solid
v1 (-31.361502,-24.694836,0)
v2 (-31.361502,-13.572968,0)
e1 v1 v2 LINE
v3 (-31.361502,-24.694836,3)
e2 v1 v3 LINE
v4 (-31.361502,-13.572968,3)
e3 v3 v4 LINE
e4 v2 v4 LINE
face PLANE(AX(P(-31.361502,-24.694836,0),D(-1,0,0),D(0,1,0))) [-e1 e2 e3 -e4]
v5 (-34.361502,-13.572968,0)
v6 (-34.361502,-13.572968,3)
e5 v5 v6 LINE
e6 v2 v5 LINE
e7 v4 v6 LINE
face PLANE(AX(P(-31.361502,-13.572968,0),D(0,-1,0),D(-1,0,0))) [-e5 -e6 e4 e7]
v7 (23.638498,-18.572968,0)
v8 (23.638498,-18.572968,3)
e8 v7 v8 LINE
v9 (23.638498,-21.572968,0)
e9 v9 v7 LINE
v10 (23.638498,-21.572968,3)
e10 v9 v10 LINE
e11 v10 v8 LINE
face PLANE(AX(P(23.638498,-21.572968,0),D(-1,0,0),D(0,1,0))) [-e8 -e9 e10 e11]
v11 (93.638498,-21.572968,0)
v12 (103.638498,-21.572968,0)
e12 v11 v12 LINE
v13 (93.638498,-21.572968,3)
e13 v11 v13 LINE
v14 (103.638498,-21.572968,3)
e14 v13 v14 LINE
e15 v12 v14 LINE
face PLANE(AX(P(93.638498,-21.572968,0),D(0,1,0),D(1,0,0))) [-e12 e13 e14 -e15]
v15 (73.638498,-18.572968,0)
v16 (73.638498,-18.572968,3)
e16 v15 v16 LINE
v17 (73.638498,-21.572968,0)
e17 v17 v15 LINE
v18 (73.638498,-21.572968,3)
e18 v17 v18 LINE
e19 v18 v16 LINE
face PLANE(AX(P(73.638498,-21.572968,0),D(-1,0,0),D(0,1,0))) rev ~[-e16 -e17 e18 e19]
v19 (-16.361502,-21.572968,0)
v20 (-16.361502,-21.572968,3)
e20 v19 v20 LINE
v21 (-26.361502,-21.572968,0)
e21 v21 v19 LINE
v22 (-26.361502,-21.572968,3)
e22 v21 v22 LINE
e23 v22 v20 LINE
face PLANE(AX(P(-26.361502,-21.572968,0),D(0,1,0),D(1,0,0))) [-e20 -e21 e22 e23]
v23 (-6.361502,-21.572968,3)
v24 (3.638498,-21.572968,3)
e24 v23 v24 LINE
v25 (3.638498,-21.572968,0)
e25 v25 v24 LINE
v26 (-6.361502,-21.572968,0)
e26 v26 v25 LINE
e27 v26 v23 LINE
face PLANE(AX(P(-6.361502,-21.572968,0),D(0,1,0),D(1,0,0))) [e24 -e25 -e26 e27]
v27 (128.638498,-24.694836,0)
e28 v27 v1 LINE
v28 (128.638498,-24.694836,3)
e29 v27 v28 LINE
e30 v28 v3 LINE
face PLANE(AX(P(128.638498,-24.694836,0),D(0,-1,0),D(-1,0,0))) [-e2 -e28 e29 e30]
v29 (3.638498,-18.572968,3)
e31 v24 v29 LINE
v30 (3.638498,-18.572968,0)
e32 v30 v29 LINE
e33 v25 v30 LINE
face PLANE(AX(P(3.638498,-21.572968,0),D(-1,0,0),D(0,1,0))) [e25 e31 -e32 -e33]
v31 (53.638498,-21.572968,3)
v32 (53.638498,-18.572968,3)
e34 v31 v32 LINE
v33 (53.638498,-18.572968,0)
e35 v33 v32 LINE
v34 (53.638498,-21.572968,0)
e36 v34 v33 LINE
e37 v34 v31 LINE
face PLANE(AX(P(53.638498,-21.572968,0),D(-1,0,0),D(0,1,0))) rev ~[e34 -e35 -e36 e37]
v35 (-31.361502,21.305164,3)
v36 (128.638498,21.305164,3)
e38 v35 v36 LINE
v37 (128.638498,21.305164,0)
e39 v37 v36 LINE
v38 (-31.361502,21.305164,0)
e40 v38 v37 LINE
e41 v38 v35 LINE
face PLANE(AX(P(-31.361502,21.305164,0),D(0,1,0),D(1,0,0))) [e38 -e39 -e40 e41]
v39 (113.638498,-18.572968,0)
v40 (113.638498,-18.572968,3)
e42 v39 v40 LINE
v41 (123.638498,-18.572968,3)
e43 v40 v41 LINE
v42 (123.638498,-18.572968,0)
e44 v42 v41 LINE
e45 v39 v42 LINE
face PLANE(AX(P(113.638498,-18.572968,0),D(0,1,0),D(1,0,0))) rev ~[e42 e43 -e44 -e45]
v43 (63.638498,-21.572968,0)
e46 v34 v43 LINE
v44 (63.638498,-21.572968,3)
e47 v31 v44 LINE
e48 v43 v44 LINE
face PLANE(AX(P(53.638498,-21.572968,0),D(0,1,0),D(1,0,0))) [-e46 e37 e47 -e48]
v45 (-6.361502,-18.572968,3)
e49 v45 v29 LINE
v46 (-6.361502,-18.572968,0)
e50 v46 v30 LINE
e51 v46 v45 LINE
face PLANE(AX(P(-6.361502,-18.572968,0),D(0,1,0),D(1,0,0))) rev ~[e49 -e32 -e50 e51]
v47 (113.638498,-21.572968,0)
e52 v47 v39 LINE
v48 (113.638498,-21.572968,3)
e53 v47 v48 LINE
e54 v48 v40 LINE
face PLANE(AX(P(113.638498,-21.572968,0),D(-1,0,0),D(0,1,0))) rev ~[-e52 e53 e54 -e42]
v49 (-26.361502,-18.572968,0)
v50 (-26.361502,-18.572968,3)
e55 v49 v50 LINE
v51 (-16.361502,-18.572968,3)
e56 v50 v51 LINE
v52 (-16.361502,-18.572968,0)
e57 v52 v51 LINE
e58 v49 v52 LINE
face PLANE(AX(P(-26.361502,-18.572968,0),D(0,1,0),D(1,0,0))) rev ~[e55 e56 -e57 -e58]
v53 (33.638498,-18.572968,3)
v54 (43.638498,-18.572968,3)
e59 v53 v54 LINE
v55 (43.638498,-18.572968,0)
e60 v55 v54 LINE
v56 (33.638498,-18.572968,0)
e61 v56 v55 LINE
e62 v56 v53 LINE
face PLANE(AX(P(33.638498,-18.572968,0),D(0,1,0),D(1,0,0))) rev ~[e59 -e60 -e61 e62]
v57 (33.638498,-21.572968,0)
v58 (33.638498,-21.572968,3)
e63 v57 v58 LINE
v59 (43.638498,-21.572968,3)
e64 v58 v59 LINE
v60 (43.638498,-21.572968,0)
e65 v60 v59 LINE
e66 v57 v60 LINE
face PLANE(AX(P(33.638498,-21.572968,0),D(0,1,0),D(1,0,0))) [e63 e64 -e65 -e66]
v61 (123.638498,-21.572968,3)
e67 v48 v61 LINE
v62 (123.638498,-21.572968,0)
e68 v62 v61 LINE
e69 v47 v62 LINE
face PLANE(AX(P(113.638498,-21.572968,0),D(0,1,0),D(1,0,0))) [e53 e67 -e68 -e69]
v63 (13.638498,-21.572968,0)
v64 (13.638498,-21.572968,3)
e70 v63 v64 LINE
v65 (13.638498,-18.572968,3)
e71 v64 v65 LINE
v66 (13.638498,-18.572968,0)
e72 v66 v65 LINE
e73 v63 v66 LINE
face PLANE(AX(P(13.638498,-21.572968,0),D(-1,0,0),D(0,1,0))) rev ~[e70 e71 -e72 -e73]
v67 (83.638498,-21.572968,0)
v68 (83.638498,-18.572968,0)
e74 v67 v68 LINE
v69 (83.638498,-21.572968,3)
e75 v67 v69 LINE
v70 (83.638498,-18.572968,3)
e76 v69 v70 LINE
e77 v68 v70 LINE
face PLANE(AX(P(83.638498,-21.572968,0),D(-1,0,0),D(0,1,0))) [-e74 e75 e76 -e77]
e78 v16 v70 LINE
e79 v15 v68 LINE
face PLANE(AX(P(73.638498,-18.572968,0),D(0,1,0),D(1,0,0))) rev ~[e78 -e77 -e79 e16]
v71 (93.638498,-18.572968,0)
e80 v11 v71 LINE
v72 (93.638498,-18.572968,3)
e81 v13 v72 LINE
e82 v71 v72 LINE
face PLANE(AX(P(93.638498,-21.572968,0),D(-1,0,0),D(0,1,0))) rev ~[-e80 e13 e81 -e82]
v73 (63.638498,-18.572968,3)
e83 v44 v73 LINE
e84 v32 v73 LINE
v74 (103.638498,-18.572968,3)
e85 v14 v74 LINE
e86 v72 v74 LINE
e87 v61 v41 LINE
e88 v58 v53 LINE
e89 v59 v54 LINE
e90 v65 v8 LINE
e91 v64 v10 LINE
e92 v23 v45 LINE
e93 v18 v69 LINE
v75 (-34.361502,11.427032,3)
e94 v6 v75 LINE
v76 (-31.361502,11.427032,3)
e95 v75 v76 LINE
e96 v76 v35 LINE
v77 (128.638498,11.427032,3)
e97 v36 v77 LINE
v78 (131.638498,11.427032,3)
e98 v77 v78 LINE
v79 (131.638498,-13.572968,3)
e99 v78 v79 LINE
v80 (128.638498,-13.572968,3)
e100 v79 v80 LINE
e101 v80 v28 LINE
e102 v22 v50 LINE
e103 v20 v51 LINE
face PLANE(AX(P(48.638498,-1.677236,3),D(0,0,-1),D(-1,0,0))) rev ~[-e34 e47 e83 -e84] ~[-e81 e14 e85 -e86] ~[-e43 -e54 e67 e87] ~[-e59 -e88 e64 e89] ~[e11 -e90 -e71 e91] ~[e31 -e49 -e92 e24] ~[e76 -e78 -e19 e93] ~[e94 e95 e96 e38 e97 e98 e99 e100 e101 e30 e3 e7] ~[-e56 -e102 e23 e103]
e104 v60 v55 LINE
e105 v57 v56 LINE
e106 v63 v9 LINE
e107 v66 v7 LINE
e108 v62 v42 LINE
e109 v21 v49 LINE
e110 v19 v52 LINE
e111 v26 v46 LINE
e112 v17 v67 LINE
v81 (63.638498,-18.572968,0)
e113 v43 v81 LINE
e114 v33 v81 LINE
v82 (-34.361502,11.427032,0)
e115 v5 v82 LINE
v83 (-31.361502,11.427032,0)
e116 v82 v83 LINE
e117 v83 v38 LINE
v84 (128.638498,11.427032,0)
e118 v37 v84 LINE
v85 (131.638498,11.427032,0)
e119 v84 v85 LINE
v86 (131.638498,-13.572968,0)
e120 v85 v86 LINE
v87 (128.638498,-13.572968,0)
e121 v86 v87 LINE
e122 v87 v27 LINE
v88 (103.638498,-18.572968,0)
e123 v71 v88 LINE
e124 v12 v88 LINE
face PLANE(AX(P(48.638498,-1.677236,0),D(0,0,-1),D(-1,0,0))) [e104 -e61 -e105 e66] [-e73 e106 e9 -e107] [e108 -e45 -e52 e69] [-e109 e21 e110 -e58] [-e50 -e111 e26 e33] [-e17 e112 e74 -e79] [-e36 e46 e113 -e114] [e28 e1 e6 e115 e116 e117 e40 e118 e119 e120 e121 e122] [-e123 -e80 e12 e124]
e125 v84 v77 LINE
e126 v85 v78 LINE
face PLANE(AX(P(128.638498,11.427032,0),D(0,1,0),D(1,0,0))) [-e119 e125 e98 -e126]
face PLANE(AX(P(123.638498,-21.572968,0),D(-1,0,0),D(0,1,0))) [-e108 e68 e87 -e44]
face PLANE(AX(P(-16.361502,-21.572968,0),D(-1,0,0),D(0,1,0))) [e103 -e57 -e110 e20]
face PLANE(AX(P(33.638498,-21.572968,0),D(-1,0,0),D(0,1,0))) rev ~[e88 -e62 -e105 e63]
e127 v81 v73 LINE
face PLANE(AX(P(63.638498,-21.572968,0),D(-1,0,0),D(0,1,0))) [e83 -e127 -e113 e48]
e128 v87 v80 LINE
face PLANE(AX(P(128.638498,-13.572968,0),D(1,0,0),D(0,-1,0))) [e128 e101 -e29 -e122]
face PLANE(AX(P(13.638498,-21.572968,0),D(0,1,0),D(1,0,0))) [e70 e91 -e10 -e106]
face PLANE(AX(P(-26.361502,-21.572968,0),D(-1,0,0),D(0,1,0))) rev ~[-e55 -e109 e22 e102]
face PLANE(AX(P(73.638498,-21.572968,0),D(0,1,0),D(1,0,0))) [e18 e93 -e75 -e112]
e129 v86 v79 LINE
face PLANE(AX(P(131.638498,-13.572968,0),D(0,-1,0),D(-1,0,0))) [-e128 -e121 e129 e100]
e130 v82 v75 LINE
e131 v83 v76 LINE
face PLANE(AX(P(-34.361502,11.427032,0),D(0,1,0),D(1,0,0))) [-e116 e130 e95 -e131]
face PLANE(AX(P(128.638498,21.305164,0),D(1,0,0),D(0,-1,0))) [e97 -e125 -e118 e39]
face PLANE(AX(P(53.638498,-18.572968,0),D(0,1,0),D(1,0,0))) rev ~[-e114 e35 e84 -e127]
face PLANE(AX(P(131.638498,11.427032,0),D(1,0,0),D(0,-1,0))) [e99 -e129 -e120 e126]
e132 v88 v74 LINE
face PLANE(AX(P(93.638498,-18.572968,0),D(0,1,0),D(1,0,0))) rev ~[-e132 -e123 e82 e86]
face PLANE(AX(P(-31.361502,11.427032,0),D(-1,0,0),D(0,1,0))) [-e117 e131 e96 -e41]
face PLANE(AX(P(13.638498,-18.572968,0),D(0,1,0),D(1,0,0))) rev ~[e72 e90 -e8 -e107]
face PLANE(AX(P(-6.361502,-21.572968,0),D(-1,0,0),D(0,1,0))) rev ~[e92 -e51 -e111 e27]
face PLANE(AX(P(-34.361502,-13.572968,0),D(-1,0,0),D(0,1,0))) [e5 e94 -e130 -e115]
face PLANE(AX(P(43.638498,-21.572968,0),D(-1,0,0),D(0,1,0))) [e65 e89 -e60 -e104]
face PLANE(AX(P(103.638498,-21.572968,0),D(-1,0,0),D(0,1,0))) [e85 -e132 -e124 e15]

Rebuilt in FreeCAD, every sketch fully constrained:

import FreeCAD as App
import Part
import Sketcher
from FreeCAD import Vector
Q = App.Units.Quantity

doc = App.newDocument("Part")
body = doc.addObject("PartDesign::Body", "Body")

sketch1 = body.newObject("Sketcher::SketchObject", "Sketch")
sketch1.AttachmentSupport = (doc.getObject("XY_Plane"), [""])
sketch1.MapMode = "FlatFace"
sketch1.addGeometry(Part.LineSegment(Vector(128.638498, 21.305164, 0), Vector(-31.361502, 21.305164, 0)), False)
sketch1.addGeometry(Part.LineSegment(Vector(-31.361502, 21.305164, 0), Vector(-31.361502, 11.427032, 0)), False)
sketch1.addGeometry(Part.LineSegment(Vector(-31.361502, 11.427032, 0), Vector(-34.361502, 11.427032, 0)), False)
sketch1.addGeometry(Part.LineSegment(Vector(-34.361502, 11.427032, 0), Vector(-34.361502, -13.572968, 0)), False)
sketch1.addGeometry(Part.LineSegment(Vector(-34.361502, -13.572968, 0), Vector(-31.361502, -13.572968, 0)), False)
sketch1.addGeometry(Part.LineSegment(Vector(-31.361502, -13.572968, 0), Vector(-31.361502, -24.694836, 0)), False)
sketch1.addGeometry(Part.LineSegment(Vector(-31.361502, -24.694836, 0), Vector(128.638498, -24.694836, 0)), False)
sketch1.addGeometry(Part.LineSegment(Vector(128.638498, -24.694836, 0), Vector(128.638498, -13.572968, 0)), False)
sketch1.addGeometry(Part.LineSegment(Vector(128.638498, -13.572968, 0), Vector(131.638498, -13.572968, 0)), False)
sketch1.addGeometry(Part.LineSegment(Vector(131.638498, -13.572968, 0), Vector(131.638498, 11.427032, 0)), False)
sketch1.addGeometry(Part.LineSegment(Vector(131.638498, 11.427032, 0), Vector(128.638498, 11.427032, 0)), False)
sketch1.addGeometry(Part.LineSegment(Vector(128.638498, 11.427032, 0), Vector(128.638498, 21.305164, 0)), False)
sketch1.addGeometry(Part.LineSegment(Vector(113.638498, -21.572968, 0), Vector(113.638498, -18.572968, 0)), False)
sketch1.addGeometry(Part.LineSegment(Vector(113.638498, -18.572968, 0), Vector(123.638498, -18.572968, 0)), False)
sketch1.addGeometry(Part.LineSegment(Vector(123.638498, -18.572968, 0), Vector(123.638498, -21.572968, 0)), False)
sketch1.addGeometry(Part.LineSegment(Vector(123.638498, -21.572968, 0), Vector(113.638498, -21.572968, 0)), False)
sketch1.addGeometry(Part.LineSegment(Vector(93.638498, -21.572968, 0), Vector(93.638498, -18.572968, 0)), False)
sketch1.addGeometry(Part.LineSegment(Vector(93.638498, -18.572968, 0), Vector(103.638498, -18.572968, 0)), False)
sketch1.addGeometry(Part.LineSegment(Vector(103.638498, -18.572968, 0), Vector(103.638498, -21.572968, 0)), False)
sketch1.addGeometry(Part.LineSegment(Vector(103.638498, -21.572968, 0), Vector(93.638498, -21.572968, 0)), False)
sketch1.addGeometry(Part.LineSegment(Vector(73.638498, -21.572968, 0), Vector(73.638498, -18.572968, 0)), False)
sketch1.addGeometry(Part.LineSegment(Vector(73.638498, -18.572968, 0), Vector(83.638498, -18.572968, 0)), False)
sketch1.addGeometry(Part.LineSegment(Vector(83.638498, -18.572968, 0), Vector(83.638498, -21.572968, 0)), False)
sketch1.addGeometry(Part.LineSegment(Vector(83.638498, -21.572968, 0), Vector(73.638498, -21.572968, 0)), False)
sketch1.addGeometry(Part.LineSegment(Vector(53.638498, -21.572968, 0), Vector(53.638498, -18.572968, 0)), False)
sketch1.addGeometry(Part.LineSegment(Vector(53.638498, -18.572968, 0), Vector(63.638498, -18.572968, 0)), False)
sketch1.addGeometry(Part.LineSegment(Vector(63.638498, -18.572968, 0), Vector(63.638498, -21.572968, 0)), False)
sketch1.addGeometry(Part.LineSegment(Vector(63.638498, -21.572968, 0), Vector(53.638498, -21.572968, 0)), False)
sketch1.addGeometry(Part.LineSegment(Vector(33.638498, -21.572968, 0), Vector(33.638498, -18.572968, 0)), False)
sketch1.addGeometry(Part.LineSegment(Vector(33.638498, -18.572968, 0), Vector(43.638498, -18.572968, 0)), False)
sketch1.addGeometry(Part.LineSegment(Vector(43.638498, -18.572968, 0), Vector(43.638498, -21.572968, 0)), False)
sketch1.addGeometry(Part.LineSegment(Vector(43.638498, -21.572968, 0), Vector(33.638498, -21.572968, 0)), False)
sketch1.addGeometry(Part.LineSegment(Vector(13.638498, -21.572968, 0), Vector(13.638498, -18.572968, 0)), False)
sketch1.addGeometry(Part.LineSegment(Vector(13.638498, -18.572968, 0), Vector(23.638498, -18.572968, 0)), False)
sketch1.addGeometry(Part.LineSegment(Vector(23.638498, -18.572968, 0), Vector(23.638498, -21.572968, 0)), False)
sketch1.addGeometry(Part.LineSegment(Vector(23.638498, -21.572968, 0), Vector(13.638498, -21.572968, 0)), False)
sketch1.addGeometry(Part.LineSegment(Vector(-6.361502, -21.572968, 0), Vector(-6.361502, -18.572968, 0)), False)
sketch1.addGeometry(Part.LineSegment(Vector(-6.361502, -18.572968, 0), Vector(3.638498, -18.572968, 0)), False)
sketch1.addGeometry(Part.LineSegment(Vector(3.638498, -18.572968, 0), Vector(3.638498, -21.572968, 0)), False)
sketch1.addGeometry(Part.LineSegment(Vector(3.638498, -21.572968, 0), Vector(-6.361502, -21.572968, 0)), False)
sketch1.addGeometry(Part.LineSegment(Vector(-26.361502, -21.572968, 0), Vector(-26.361502, -18.572968, 0)), False)
sketch1.addGeometry(Part.LineSegment(Vector(-26.361502, -18.572968, 0), Vector(-16.361502, -18.572968, 0)), False)
sketch1.addGeometry(Part.LineSegment(Vector(-16.361502, -18.572968, 0), Vector(-16.361502, -21.572968, 0)), False)
sketch1.addGeometry(Part.LineSegment(Vector(-16.361502, -21.572968, 0), Vector(-26.361502, -21.572968, 0)), False)
sketch1.addConstraint(Sketcher.Constraint("Coincident", 0, 2, 1, 1))
sketch1.addConstraint(Sketcher.Constraint("Coincident", 1, 2, 2, 1))
sketch1.addConstraint(Sketcher.Constraint("Coincident", 2, 2, 3, 1))
sketch1.addConstraint(Sketcher.Constraint("Coincident", 3, 2, 4, 1))
sketch1.addConstraint(Sketcher.Constraint("Coincident", 4, 2, 5, 1))
sketch1.addConstraint(Sketcher.Constraint("Coincident", 5, 2, 6, 1))
sketch1.addConstraint(Sketcher.Constraint("Coincident", 6, 2, 7, 1))
sketch1.addConstraint(Sketcher.Constraint("Coincident", 7, 2, 8, 1))
sketch1.addConstraint(Sketcher.Constraint("Coincident", 8, 2, 9, 1))
sketch1.addConstraint(Sketcher.Constraint("Coincident", 9, 2, 10, 1))
sketch1.addConstraint(Sketcher.Constraint("Coincident", 10, 2, 11, 1))
sketch1.addConstraint(Sketcher.Constraint("Coincident", 11, 2, 0, 1))
sketch1.addConstraint(Sketcher.Constraint("Coincident", 12, 2, 13, 1))
sketch1.addConstraint(Sketcher.Constraint("Coincident", 13, 2, 14, 1))
sketch1.addConstraint(Sketcher.Constraint("Coincident", 14, 2, 15, 1))
sketch1.addConstraint(Sketcher.Constraint("Coincident", 15, 2, 12, 1))
sketch1.addConstraint(Sketcher.Constraint("Coincident", 16, 2, 17, 1))
sketch1.addConstraint(Sketcher.Constraint("Coincident", 17, 2, 18, 1))
sketch1.addConstraint(Sketcher.Constraint("Coincident", 18, 2, 19, 1))
sketch1.addConstraint(Sketcher.Constraint("Coincident", 19, 2, 16, 1))
sketch1.addConstraint(Sketcher.Constraint("Coincident", 20, 2, 21, 1))
sketch1.addConstraint(Sketcher.Constraint("Coincident", 21, 2, 22, 1))
sketch1.addConstraint(Sketcher.Constraint("Coincident", 22, 2, 23, 1))
sketch1.addConstraint(Sketcher.Constraint("Coincident", 23, 2, 20, 1))
sketch1.addConstraint(Sketcher.Constraint("Coincident", 24, 2, 25, 1))
sketch1.addConstraint(Sketcher.Constraint("Coincident", 25, 2, 26, 1))
sketch1.addConstraint(Sketcher.Constraint("Coincident", 26, 2, 27, 1))
sketch1.addConstraint(Sketcher.Constraint("Coincident", 27, 2, 24, 1))
sketch1.addConstraint(Sketcher.Constraint("Coincident", 28, 2, 29, 1))
sketch1.addConstraint(Sketcher.Constraint("Coincident", 29, 2, 30, 1))
sketch1.addConstraint(Sketcher.Constraint("Coincident", 30, 2, 31, 1))
sketch1.addConstraint(Sketcher.Constraint("Coincident", 31, 2, 28, 1))
sketch1.addConstraint(Sketcher.Constraint("Coincident", 32, 2, 33, 1))
sketch1.addConstraint(Sketcher.Constraint("Coincident", 33, 2, 34, 1))
sketch1.addConstraint(Sketcher.Constraint("Coincident", 34, 2, 35, 1))
sketch1.addConstraint(Sketcher.Constraint("Coincident", 35, 2, 32, 1))
sketch1.addConstraint(Sketcher.Constraint("Coincident", 36, 2, 37, 1))
sketch1.addConstraint(Sketcher.Constraint("Coincident", 37, 2, 38, 1))
sketch1.addConstraint(Sketcher.Constraint("Coincident", 38, 2, 39, 1))
sketch1.addConstraint(Sketcher.Constraint("Coincident", 39, 2, 36, 1))
sketch1.addConstraint(Sketcher.Constraint("Coincident", 40, 2, 41, 1))
sketch1.addConstraint(Sketcher.Constraint("Coincident", 41, 2, 42, 1))
sketch1.addConstraint(Sketcher.Constraint("Coincident", 42, 2, 43, 1))
sketch1.addConstraint(Sketcher.Constraint("Coincident", 43, 2, 40, 1))
sketch1.addConstraint(Sketcher.Constraint("Horizontal", 0))
sketch1.addConstraint(Sketcher.Constraint("Vertical", 1))
sketch1.addConstraint(Sketcher.Constraint("Horizontal", 2))
sketch1.addConstraint(Sketcher.Constraint("Vertical", 3))
sketch1.addConstraint(Sketcher.Constraint("Horizontal", 4))
sketch1.addConstraint(Sketcher.Constraint("Vertical", 5))
sketch1.addConstraint(Sketcher.Constraint("Horizontal", 6))
sketch1.addConstraint(Sketcher.Constraint("Vertical", 7))
sketch1.addConstraint(Sketcher.Constraint("Horizontal", 8))
sketch1.addConstraint(Sketcher.Constraint("Vertical", 9))
sketch1.addConstraint(Sketcher.Constraint("Horizontal", 10))
sketch1.addConstraint(Sketcher.Constraint("Vertical", 11))
sketch1.addConstraint(Sketcher.Constraint("Vertical", 12))
sketch1.addConstraint(Sketcher.Constraint("Horizontal", 13))
sketch1.addConstraint(Sketcher.Constraint("Vertical", 14))
sketch1.addConstraint(Sketcher.Constraint("Horizontal", 15))
sketch1.addConstraint(Sketcher.Constraint("Vertical", 16))
sketch1.addConstraint(Sketcher.Constraint("Horizontal", 17))
sketch1.addConstraint(Sketcher.Constraint("Vertical", 18))
sketch1.addConstraint(Sketcher.Constraint("Horizontal", 19))
sketch1.addConstraint(Sketcher.Constraint("Vertical", 20))
sketch1.addConstraint(Sketcher.Constraint("Horizontal", 21))
sketch1.addConstraint(Sketcher.Constraint("Vertical", 22))
sketch1.addConstraint(Sketcher.Constraint("Horizontal", 23))
sketch1.addConstraint(Sketcher.Constraint("Vertical", 24))
sketch1.addConstraint(Sketcher.Constraint("Horizontal", 25))
sketch1.addConstraint(Sketcher.Constraint("Vertical", 26))
sketch1.addConstraint(Sketcher.Constraint("Horizontal", 27))
sketch1.addConstraint(Sketcher.Constraint("Vertical", 28))
sketch1.addConstraint(Sketcher.Constraint("Horizontal", 29))
sketch1.addConstraint(Sketcher.Constraint("Vertical", 30))
sketch1.addConstraint(Sketcher.Constraint("Horizontal", 31))
sketch1.addConstraint(Sketcher.Constraint("Vertical", 32))
sketch1.addConstraint(Sketcher.Constraint("Horizontal", 33))
sketch1.addConstraint(Sketcher.Constraint("Vertical", 34))
sketch1.addConstraint(Sketcher.Constraint("Horizontal", 35))
sketch1.addConstraint(Sketcher.Constraint("Vertical", 36))
sketch1.addConstraint(Sketcher.Constraint("Horizontal", 37))
sketch1.addConstraint(Sketcher.Constraint("Vertical", 38))
sketch1.addConstraint(Sketcher.Constraint("Horizontal", 39))
sketch1.addConstraint(Sketcher.Constraint("Vertical", 40))
sketch1.addConstraint(Sketcher.Constraint("Horizontal", 41))
sketch1.addConstraint(Sketcher.Constraint("Vertical", 42))
sketch1.addConstraint(Sketcher.Constraint("Horizontal", 43))
sketch1.addConstraint(Sketcher.Constraint("Horizontal", 4, 2, 7, 2))
sketch1.addConstraint(Sketcher.Constraint("Horizontal", 2, 2, 9, 2))
sketch1.addConstraint(Sketcher.Constraint("Horizontal", 13, 2, 16, 2))
sketch1.addConstraint(Sketcher.Constraint("Horizontal", 15, 2, 18, 2))
sketch1.addConstraint(Sketcher.Constraint("Horizontal", 17, 2, 20, 2))
sketch1.addConstraint(Sketcher.Constraint("Horizontal", 19, 2, 22, 2))
sketch1.addConstraint(Sketcher.Constraint("Horizontal", 21, 2, 24, 2))
sketch1.addConstraint(Sketcher.Constraint("Horizontal", 23, 2, 26, 2))
sketch1.addConstraint(Sketcher.Constraint("Horizontal", 25, 2, 28, 2))
sketch1.addConstraint(Sketcher.Constraint("Horizontal", 27, 2, 30, 2))
sketch1.addConstraint(Sketcher.Constraint("Horizontal", 29, 2, 32, 2))
sketch1.addConstraint(Sketcher.Constraint("Horizontal", 31, 2, 34, 2))
sketch1.addConstraint(Sketcher.Constraint("Horizontal", 33, 2, 36, 2))
sketch1.addConstraint(Sketcher.Constraint("Horizontal", 35, 2, 38, 2))
sketch1.addConstraint(Sketcher.Constraint("Horizontal", 37, 2, 40, 2))
sketch1.addConstraint(Sketcher.Constraint("Horizontal", 39, 2, 42, 2))
sketch1.addConstraint(Sketcher.Constraint("Vertical", 1, 2, 4, 2))
sketch1.addConstraint(Sketcher.Constraint("Vertical", 7, 2, 10, 2))
sketch1.addConstraint(Sketcher.Constraint("Equal", 4, 8))
sketch1.addConstraint(Sketcher.Constraint("Equal", 15, 17))
sketch1.addConstraint(Sketcher.Constraint("Equal", 19, 21))
sketch1.addConstraint(Sketcher.Constraint("Equal", 23, 25))
sketch1.addConstraint(Sketcher.Constraint("Equal", 27, 29))
sketch1.addConstraint(Sketcher.Constraint("Equal", 31, 33))
sketch1.addConstraint(Sketcher.Constraint("Equal", 35, 37))
sketch1.addConstraint(Sketcher.Constraint("Equal", 39, 41))
sketch1.addConstraint(Sketcher.Constraint("Equal", 10, 12))
sketch1.addConstraint(Sketcher.Constraint("DistanceX", 0, 2, 0, 1, Q("160 mm")))
sketch1.addConstraint(Sketcher.Constraint("DistanceX", 2, 2, 2, 1, Q("3 mm")))
sketch1.addConstraint(Sketcher.Constraint("DistanceX", 13, 1, 13, 2, Q("10 mm")))
sketch1.addConstraint(Sketcher.Constraint("DistanceY", 3, 2, 3, 1, Q("25 mm")))
sketch1.addConstraint(Sketcher.Constraint("DistanceY", 5, 2, 0, 2, Q("46 mm")))
sketch1.addConstraint(Sketcher.Constraint("DistanceX", 12, 2, 7, 2, Q("15 mm")))
sketch1.addConstraint(Sketcher.Constraint("DistanceY", 12, 2, 7, 2, Q("5 mm")))
sketch1.addConstraint(Sketcher.Constraint("DistanceX", 16, 2, 12, 2, Q("20 mm")))
sketch1.addConstraint(Sketcher.Constraint("DistanceX", 20, 2, 16, 2, Q("20 mm")))
sketch1.addConstraint(Sketcher.Constraint("DistanceX", 24, 2, 20, 2, Q("20 mm")))
sketch1.addConstraint(Sketcher.Constraint("DistanceX", 28, 2, 24, 2, Q("20 mm")))
sketch1.addConstraint(Sketcher.Constraint("DistanceX", 32, 2, 28, 2, Q("20 mm")))
sketch1.addConstraint(Sketcher.Constraint("DistanceX", 36, 2, 32, 2, Q("20 mm")))
sketch1.addConstraint(Sketcher.Constraint("DistanceX", 4, 2, 40, 2, Q("5 mm")))
sketch1.addConstraint(Sketcher.Constraint("DistanceY", 1, 2, 1, 1, Q("9.878133 mm")))
sketch1.addConstraint(Sketcher.Constraint("DistanceY", -1, 1, 1, 2, Q("11.427032 mm")))
sketch1.addConstraint(Sketcher.Constraint("DistanceX", 0, 2, -1, 1, Q("31.361502 mm")))
pad1 = body.newObject("PartDesign::Pad", "Pad")
pad1.Profile = sketch1
pad1.Length = 3

doc.recompute()
